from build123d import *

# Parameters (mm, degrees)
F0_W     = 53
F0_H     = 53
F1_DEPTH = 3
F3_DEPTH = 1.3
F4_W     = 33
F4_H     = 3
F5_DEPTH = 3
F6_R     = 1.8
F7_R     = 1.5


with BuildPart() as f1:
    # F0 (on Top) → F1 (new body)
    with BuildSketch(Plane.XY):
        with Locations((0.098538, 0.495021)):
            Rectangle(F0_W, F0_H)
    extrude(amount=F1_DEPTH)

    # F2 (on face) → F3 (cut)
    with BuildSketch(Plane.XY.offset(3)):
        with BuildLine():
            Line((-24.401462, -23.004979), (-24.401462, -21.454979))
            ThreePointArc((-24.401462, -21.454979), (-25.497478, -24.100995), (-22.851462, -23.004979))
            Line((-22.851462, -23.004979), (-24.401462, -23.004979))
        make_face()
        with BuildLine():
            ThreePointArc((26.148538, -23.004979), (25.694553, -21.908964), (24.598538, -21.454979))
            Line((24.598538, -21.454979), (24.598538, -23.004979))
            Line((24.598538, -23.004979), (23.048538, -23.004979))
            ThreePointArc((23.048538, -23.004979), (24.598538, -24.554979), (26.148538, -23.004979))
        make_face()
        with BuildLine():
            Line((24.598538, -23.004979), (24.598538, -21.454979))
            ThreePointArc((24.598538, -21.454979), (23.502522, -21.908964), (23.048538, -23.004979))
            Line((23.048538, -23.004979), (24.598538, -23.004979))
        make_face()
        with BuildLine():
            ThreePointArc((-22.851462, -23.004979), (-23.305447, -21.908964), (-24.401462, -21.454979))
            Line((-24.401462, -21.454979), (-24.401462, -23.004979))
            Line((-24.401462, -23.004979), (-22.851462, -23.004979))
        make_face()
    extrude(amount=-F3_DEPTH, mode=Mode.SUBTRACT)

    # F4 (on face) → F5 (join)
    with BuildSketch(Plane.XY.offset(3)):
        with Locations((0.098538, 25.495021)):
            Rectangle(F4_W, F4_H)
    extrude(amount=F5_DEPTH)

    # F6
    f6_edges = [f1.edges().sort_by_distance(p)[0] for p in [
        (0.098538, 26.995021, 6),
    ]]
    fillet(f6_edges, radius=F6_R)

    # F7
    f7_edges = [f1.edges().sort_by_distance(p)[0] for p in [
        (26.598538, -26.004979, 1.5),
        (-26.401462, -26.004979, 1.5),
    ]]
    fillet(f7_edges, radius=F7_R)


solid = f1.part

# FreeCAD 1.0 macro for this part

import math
import FreeCAD as App
import Part
import Sketcher
Q = App.Units.Quantity


def edges_at(feature, points):
    """Names of the edges that pass closest to the given points."""
    edges = feature.Shape.Edges
    near = lambda p: min(range(len(edges)), key=lambda i: edges[i].distToShape(Part.Vertex(*p))[0])
    return sorted({f"Edge{near(p) + 1}" for p in points})

doc = App.newDocument("Part")
body = doc.addObject("PartDesign::Body", "Body")

# Sketch on XY plane
sketch1 = doc.addObject("Sketcher::SketchObject", "Sketch")
body.addObject(sketch1)
sketch1.AttachmentSupport = (doc.XY_Plane, [""])
sketch1.MapMode = "FlatFace"
sketch1.addGeometry([
    Part.LineSegment(App.Vector(-26, 27, 0), App.Vector(-26, -26, 0)),
    Part.LineSegment(App.Vector(-26, -26, 0), App.Vector(27, -26, 0)),
    Part.LineSegment(App.Vector(27, -26, 0), App.Vector(27, 27, 0)),
    Part.LineSegment(App.Vector(27, 27, 0), App.Vector(-26, 27, 0)),
], False)
sketch1.addConstraint([
    Sketcher.Constraint("Coincident", 0, 2, 1, 1),
    Sketcher.Constraint("Coincident", 1, 2, 2, 1),
    Sketcher.Constraint("Coincident", 2, 2, 3, 1),
    Sketcher.Constraint("Coincident", 3, 2, 0, 1),
    Sketcher.Constraint("Vertical", 0),
    Sketcher.Constraint("Horizontal", 1),
    Sketcher.Constraint("Vertical", 2),
    Sketcher.Constraint("Horizontal", 3),
    Sketcher.Constraint("Equal", 3, 0),
    Sketcher.Constraint("DistanceX", 1, 1, 1, 2, Q("53 mm")),
    Sketcher.Constraint("DistanceX", 0, 2, -1, 1, Q("26.401462 mm")),
    Sketcher.Constraint("DistanceY", 0, 2, -1, 1, Q("26.004979 mm")),
])
pad1 = doc.addObject("PartDesign::Pad", "Pad")
body.addObject(pad1)
pad1.Profile = sketch1
pad1.Length = 3

# Sketch on XY plane
sketch2 = doc.addObject("Sketcher::SketchObject", "Sketch001")
body.addObject(sketch2)
sketch2.AttachmentSupport = (doc.XY_Plane, [""])
sketch2.MapMode = "FlatFace"
sketch2.AttachmentOffset = App.Placement(App.Vector(0, 0, 3), App.Rotation())
sketch2.addGeometry([
    Part.ArcOfCircle(Part.Circle(App.Vector(-24.4, -23, 0), App.Vector(0, 0, 1), 1.6), math.radians(90), math.radians(360)),  # 0
    Part.ArcOfCircle(Part.Circle(App.Vector(-24.4, -23, 0), App.Vector(0, 0, 1), 1.6), math.radians(0), math.radians(90)),  # 1
    Part.ArcOfCircle(Part.Circle(App.Vector(24.6, -23, 0), App.Vector(0, 0, 1), 1.6), math.radians(0), math.radians(90)),  # 2
    Part.ArcOfCircle(Part.Circle(App.Vector(24.6, -23, 0), App.Vector(0, 0, 1), 1.6), math.radians(90), math.radians(180)),  # 3
    Part.ArcOfCircle(Part.Circle(App.Vector(24.6, -23, 0), App.Vector(0, 0, 1), 1.6), math.radians(180), math.radians(360)),  # 4
], False)
sketch2.addConstraint([
    Sketcher.Constraint("Tangent", 0, 1, 1, 2),
    Sketcher.Constraint("Coincident", 1, 1, 0, 2),
    Sketcher.Constraint("Tangent", 2, 2, 3, 1),
    Sketcher.Constraint("Tangent", 3, 2, 4, 1),
    Sketcher.Constraint("Tangent", 4, 2, 2, 1),
    Sketcher.Constraint("Equal", 1, 2),
    Sketcher.Constraint("Horizontal", 1, 3, 2, 3),
    Sketcher.Constraint("Horizontal", 4, 3, 1, 1),
    Sketcher.Constraint("Horizontal", 1, 1, 3, 2),
    Sketcher.Constraint("Horizontal", 3, 2, 4, 2),
    Sketcher.Constraint("Vertical", 1, 3, 0, 1),
    Sketcher.Constraint("Vertical", 4, 3, 2, 2),
    Sketcher.Constraint("Radius", 0, Q("1.55 mm")),
    Sketcher.Constraint("DistanceX", 0, 3, 2, 3, Q("48.999999 mm")),
    Sketcher.Constraint("DistanceY", 0, 3, -1, 1, Q("23.004979 mm")),
    Sketcher.Constraint("DistanceX", -1, 1, 3, 3, Q("24.598538 mm")),
])
pocket1 = doc.addObject("PartDesign::Pocket", "Pocket")
body.addObject(pocket1)
pocket1.Profile = sketch2
pocket1.Length = 1.3

# Sketch on XY plane
sketch3 = doc.addObject("Sketcher::SketchObject", "Sketch002")
body.addObject(sketch3)
sketch3.AttachmentSupport = (doc.XY_Plane, [""])
sketch3.MapMode = "FlatFace"
sketch3.AttachmentOffset = App.Placement(App.Vector(0, 0, 3), App.Rotation())
sketch3.addGeometry([
    Part.LineSegment(App.Vector(-16.4, 27, 0), App.Vector(-16.4, 24, 0)),
    Part.LineSegment(App.Vector(-16.4, 24, 0), App.Vector(16.6, 24, 0)),
    Part.LineSegment(App.Vector(16.6, 24, 0), App.Vector(16.6, 27, 0)),
    Part.LineSegment(App.Vector(16.6, 27, 0), App.Vector(-16.4, 27, 0)),
], False)
sketch3.addConstraint([
    Sketcher.Constraint("Coincident", 0, 2, 1, 1),
    Sketcher.Constraint("Coincident", 1, 2, 2, 1),
    Sketcher.Constraint("Coincident", 2, 2, 3, 1),
    Sketcher.Constraint("Coincident", 3, 2, 0, 1),
    Sketcher.Constraint("Vertical", 0),
    Sketcher.Constraint("Horizontal", 1),
    Sketcher.Constraint("Vertical", 2),
    Sketcher.Constraint("Horizontal", 3),
    Sketcher.Constraint("DistanceX", 1, 1, 1, 2, Q("33 mm")),
    Sketcher.Constraint("DistanceY", 0, 2, 0, 1, Q("3 mm")),
    Sketcher.Constraint("DistanceX", 0, 2, -1, 1, Q("16.401462 mm")),
    Sketcher.Constraint("DistanceY", -1, 1, 0, 2, Q("23.995021 mm")),
])
pad2 = doc.addObject("PartDesign::Pad", "Pad001")
body.addObject(pad2)
pad2.Profile = sketch3
pad2.Length = 3
doc.recompute()

fillet = doc.addObject("PartDesign::Fillet", "Fillet")
body.addObject(fillet)
fillet.Base = (pad2, edges_at(pad2, [(0.099, 26.995, 6)]))
fillet.Radius = 1.8
doc.recompute()

fillet2 = doc.addObject("PartDesign::Fillet", "Fillet001")
body.addObject(fillet2)
fillet2.Base = (fillet, edges_at(fillet, [(26.599, -26.005, 1.5), (-26.401, -26.005, 1.5)]))
fillet2.Radius = 1.5

doc.recompute()
